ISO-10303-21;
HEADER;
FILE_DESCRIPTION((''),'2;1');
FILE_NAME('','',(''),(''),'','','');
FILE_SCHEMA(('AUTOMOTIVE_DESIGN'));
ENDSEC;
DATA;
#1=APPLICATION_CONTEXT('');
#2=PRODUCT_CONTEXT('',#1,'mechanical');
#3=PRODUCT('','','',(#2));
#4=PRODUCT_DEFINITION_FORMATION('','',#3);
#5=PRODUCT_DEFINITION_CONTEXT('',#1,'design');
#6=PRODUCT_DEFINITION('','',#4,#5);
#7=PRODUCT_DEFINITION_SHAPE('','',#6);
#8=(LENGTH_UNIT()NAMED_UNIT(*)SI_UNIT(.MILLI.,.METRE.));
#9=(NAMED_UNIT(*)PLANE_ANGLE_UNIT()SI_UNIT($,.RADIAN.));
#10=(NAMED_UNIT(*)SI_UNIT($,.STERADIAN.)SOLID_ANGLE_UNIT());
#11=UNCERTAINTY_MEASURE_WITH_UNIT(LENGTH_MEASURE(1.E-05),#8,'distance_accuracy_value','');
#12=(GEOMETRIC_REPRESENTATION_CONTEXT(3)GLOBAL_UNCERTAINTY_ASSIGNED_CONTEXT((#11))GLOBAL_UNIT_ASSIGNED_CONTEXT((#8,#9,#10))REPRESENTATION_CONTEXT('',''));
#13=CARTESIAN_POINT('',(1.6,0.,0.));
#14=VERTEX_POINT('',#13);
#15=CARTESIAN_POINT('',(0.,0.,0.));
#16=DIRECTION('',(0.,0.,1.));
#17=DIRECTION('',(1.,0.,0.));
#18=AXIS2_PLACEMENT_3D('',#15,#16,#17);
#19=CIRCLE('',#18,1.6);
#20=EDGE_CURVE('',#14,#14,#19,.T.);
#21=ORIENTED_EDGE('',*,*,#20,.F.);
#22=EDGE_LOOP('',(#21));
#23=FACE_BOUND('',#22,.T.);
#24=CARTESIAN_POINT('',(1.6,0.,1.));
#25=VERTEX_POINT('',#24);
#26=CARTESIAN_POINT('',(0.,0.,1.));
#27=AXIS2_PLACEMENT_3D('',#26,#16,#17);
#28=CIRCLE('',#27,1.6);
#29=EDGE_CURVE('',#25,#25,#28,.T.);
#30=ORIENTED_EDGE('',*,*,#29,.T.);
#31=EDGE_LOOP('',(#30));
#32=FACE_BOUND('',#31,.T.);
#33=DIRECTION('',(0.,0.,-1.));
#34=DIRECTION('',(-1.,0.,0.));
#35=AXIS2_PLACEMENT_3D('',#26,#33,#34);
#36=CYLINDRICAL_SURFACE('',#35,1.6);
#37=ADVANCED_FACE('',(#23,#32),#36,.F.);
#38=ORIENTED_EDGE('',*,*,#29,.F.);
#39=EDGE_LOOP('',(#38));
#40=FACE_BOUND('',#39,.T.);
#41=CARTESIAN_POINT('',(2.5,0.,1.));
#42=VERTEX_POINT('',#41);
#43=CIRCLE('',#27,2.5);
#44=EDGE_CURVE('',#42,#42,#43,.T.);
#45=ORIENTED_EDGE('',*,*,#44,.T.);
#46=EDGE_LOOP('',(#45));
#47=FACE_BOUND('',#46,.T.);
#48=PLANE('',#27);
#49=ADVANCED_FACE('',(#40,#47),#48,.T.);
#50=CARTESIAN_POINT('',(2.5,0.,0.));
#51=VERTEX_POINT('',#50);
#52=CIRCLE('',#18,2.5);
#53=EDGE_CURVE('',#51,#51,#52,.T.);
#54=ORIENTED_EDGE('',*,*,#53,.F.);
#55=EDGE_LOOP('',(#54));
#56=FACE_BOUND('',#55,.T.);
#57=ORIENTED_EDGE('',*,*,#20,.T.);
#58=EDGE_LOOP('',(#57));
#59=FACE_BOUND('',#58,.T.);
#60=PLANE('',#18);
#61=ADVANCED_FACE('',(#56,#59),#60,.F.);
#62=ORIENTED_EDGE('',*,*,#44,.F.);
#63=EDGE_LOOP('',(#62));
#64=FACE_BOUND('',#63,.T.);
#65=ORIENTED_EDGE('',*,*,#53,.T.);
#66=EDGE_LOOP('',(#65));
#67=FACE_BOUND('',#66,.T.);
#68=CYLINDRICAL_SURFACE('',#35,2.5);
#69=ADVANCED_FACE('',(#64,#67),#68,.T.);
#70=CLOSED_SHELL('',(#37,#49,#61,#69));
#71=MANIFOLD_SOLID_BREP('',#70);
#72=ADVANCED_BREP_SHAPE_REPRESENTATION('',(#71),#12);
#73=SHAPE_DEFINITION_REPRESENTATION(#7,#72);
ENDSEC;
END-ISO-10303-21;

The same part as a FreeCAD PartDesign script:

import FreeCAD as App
import Part
import Sketcher
from FreeCAD import Vector

doc = App.newDocument("Part")
body = doc.addObject("PartDesign::Body", "Body")

# Sketch on XY plane
sketch1 = body.newObject("Sketcher::SketchObject", "Sketch")
sketch1.AttachmentSupport = (doc.getObject("XY_Plane"), [""])
sketch1.MapMode = "FlatFace"
sketch1.addGeometry(Part.Circle(Vector(0, 0, 0), Vector(0, 0, 1), 2.5), False)
sketch1.addGeometry(Part.Circle(Vector(0, 0, 0), Vector(0, 0, 1), 1.6), False)
sketch1.addConstraint(Sketcher.Constraint("Coincident", 0, 3, -1, 1))
sketch1.addConstraint(Sketcher.Constraint("Coincident", 1, 3, -1, 1))
sketch1.addConstraint(Sketcher.Constraint("Diameter", 0, 5.0))
sketch1.addConstraint(Sketcher.Constraint("Diameter", 1, 3.2))
pad1 = body.newObject("PartDesign::Pad", "Pad")
pad1.Profile = sketch1
pad1.Length = 1

doc.recompute()
